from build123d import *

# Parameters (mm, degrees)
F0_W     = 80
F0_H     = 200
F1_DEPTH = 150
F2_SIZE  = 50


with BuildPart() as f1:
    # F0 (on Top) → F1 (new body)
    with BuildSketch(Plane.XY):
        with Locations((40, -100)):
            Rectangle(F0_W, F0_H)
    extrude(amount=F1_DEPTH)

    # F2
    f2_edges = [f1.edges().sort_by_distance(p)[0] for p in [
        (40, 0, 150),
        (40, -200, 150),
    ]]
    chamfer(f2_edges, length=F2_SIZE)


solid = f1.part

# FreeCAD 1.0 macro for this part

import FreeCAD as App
import Part
import Sketcher
from FreeCAD import Vector


def edges_at(feature, points):
    """Names of the edges that pass closest to the given points."""
    edges = feature.Shape.Edges
    near = lambda p: min(range(len(edges)), key=lambda i: edges[i].distToShape(Part.Vertex(*p))[0])
    return sorted({f"Edge{near(p) + 1}" for p in points})


def add_polygon(sketch, points):
    """Adds a closed chain of lines whose ends are joined by coincident constraints."""
    first, n = sketch.GeometryCount, len(points)
    for a, b in zip(points, points[1:] + points[:1]):
        sketch.addGeometry(Part.LineSegment(App.Vector(*a, 0), App.Vector(*b, 0)), False)
    for i in range(n):
        sketch.addConstraint(Sketcher.Constraint("Coincident", first + i, 2, first + (i + 1) % n, 1))

doc = App.newDocument("Part")
body = doc.addObject("PartDesign::Body", "Body")

sketch1 = doc.addObject("Sketcher::SketchObject", "Sketch")
body.addObject(sketch1)
sketch1.AttachmentSupport = (doc.XY_Plane, [""])
sketch1.MapMode = "FlatFace"
add_polygon(sketch1, [(0, 0), (0, -200), (80, -200), (80, 0)])
sketch1.addConstraint([
    Sketcher.Constraint("Vertical", 0),
    Sketcher.Constraint("Horizontal", 1),
    Sketcher.Constraint("Vertical", 2),
    Sketcher.Constraint("Horizontal", 3),
    Sketcher.Constraint("Coincident", 3, 2, -1, 1),
    Sketcher.Constraint("DistanceX", 1, 1, 1, 2, 80.0),
    Sketcher.Constraint("DistanceY", 0, 2, 0, 1, 200.0),
])
pad1 = doc.addObject("PartDesign::Pad", "Pad")
body.addObject(pad1)
pad1.Profile = sketch1
pad1.Length = 150
doc.recompute()

chamfer = doc.addObject("PartDesign::Chamfer", "Chamfer")
body.addObject(chamfer)
chamfer.Base = (pad1, edges_at(pad1, [(40, 0, 150), (40, -200, 150)]))
chamfer.Size = 50

doc.recompute()
